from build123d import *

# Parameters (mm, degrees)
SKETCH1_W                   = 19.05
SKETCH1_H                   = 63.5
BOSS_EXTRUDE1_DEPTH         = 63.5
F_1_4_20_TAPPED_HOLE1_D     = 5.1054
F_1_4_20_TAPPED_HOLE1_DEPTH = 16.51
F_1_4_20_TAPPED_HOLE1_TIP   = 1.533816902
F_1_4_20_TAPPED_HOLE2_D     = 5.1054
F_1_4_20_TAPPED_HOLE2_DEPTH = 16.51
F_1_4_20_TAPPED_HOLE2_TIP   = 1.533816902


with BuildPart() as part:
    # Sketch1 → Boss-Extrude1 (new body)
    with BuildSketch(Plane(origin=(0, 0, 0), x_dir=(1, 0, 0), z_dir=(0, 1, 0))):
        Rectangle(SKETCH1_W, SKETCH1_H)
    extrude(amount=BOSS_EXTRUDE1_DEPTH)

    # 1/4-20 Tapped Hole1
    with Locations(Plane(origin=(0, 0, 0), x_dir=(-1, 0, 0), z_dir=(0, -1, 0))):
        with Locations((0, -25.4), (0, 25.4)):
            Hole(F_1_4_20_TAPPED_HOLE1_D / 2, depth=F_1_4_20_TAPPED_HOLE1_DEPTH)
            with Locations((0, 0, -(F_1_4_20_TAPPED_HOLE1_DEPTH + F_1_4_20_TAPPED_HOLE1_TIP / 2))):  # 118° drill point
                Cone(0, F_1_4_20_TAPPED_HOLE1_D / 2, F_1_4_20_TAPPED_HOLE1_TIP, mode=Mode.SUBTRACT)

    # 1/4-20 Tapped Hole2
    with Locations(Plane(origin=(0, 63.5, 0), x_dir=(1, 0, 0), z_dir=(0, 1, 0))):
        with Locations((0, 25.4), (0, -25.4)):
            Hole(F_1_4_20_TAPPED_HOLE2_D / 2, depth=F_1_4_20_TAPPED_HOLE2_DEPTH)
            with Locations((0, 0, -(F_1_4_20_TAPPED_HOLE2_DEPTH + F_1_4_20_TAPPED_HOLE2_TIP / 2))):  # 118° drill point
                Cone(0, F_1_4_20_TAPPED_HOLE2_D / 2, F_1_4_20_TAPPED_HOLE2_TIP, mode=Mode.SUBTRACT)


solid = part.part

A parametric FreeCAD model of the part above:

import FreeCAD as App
import Part
import Sketcher
from FreeCAD import Vector
Q = App.Units.Quantity

doc = App.newDocument("Part")
body = doc.addObject("PartDesign::Body", "Body")

sketch1 = doc.addObject("Sketcher::SketchObject", "Sketch")
body.addObject(sketch1)
sketch1.AttachmentSupport = (doc.XZ_Plane, [""])
sketch1.MapMode = "FlatFace"
sketch1.addGeometry([
    Part.LineSegment(Vector(-9.525, -31.75, 0), Vector(-9.525, 31.75, 0)),
    Part.LineSegment(Vector(-9.525, 31.75, 0), Vector(9.525, 31.75, 0)),
    Part.LineSegment(Vector(9.525, 31.75, 0), Vector(9.525, -31.75, 0)),
    Part.LineSegment(Vector(9.525, -31.75, 0), Vector(-9.525, -31.75, 0)),
], False)
sketch1.addConstraint([
    Sketcher.Constraint("Coincident", 0, 2, 1, 1),
    Sketcher.Constraint("Coincident", 1, 2, 2, 1),
    Sketcher.Constraint("Coincident", 2, 2, 3, 1),
    Sketcher.Constraint("Coincident", 3, 2, 0, 1),
    Sketcher.Constraint("Vertical", 0),
    Sketcher.Constraint("Horizontal", 1),
    Sketcher.Constraint("Vertical", 2),
    Sketcher.Constraint("Horizontal", 3),
    Sketcher.Constraint("Symmetric", 0, 2, 2, 2, -1, 1),
    Sketcher.Constraint("DistanceY", 0, 1, 0, 2, Q("2.5 in")),
    Sketcher.Constraint("DistanceX", 1, 1, 1, 2, Q("0.75 in")),
])
pad1 = doc.addObject("PartDesign::Pad", "Pad")
body.addObject(pad1)
pad1.Profile = sketch1
pad1.Length = Q("2.5 in")
pad1.Reversed = True

sketch2 = doc.addObject("Sketcher::SketchObject", "Sketch001")
body.addObject(sketch2)
sketch2.AttachmentSupport = (doc.XZ_Plane, [""])
sketch2.MapMode = "FlatFace"
sketch2.addGeometry([
    Part.Circle(Vector(0, 25.4, 0), Vector(0, 0, 1), 2.5527),
    Part.Circle(Vector(0, -25.4, 0), Vector(0, 0, 1), 2.5527),
], False)
sketch2.addConstraint([
    Sketcher.Constraint("Equal", 0, 1),
    Sketcher.Constraint("Symmetric", 0, 3, 1, 3, -1, 1),
    Sketcher.Constraint("PointOnObject", 0, 3, -2),
    Sketcher.Constraint("Diameter", 0, Q("0.201 in")),
    Sketcher.Constraint("DistanceY", -1, 1, 0, 3, Q("1 in")),
])
doc.recompute()
hole = doc.addObject("PartDesign::Hole", "Hole")
body.addObject(hole)
hole.Profile = sketch2
hole.ThreadType = "None"
hole.Diameter = Q("0.201 in")
hole.DepthType = "Dimension"
hole.Depth = Q("0.65 in")
hole.DrillPoint = "Angled"
hole.DrillPointAngle = 118

sketch3 = doc.addObject("Sketcher::SketchObject", "Sketch002")
body.addObject(sketch3)
sketch3.AttachmentSupport = (doc.XZ_Plane, [""])
sketch3.MapMode = "FlatFace"
sketch3.AttachmentOffset = App.Placement(Vector(0, 0, -2.5 * 25.4), App.Rotation())
sketch3.addGeometry([
    Part.Circle(Vector(0, -25.4, 0), Vector(0, 0, 1), 2.5527),
    Part.Circle(Vector(0, 25.4, 0), Vector(0, 0, 1), 2.5527),
], False)
sketch3.addConstraint([
    Sketcher.Constraint("Equal", 0, 1),
    Sketcher.Constraint("Symmetric", 0, 3, 1, 3, -1, 1),
    Sketcher.Constraint("PointOnObject", 0, 3, -2),
    Sketcher.Constraint("Diameter", 0, Q("0.201 in")),
    Sketcher.Constraint("DistanceY", 0, 3, -1, 1, Q("1 in")),
])
doc.recompute()
hole2 = doc.addObject("PartDesign::Hole", "Hole001")
body.addObject(hole2)
hole2.Profile = sketch3
hole2.ThreadType = "None"
hole2.Diameter = Q("0.201 in")
hole2.DepthType = "Dimension"
hole2.Depth = Q("0.65 in")
hole2.DrillPoint = "Angled"
hole2.DrillPointAngle = 118
hole2.Reversed = True

doc.recompute()
